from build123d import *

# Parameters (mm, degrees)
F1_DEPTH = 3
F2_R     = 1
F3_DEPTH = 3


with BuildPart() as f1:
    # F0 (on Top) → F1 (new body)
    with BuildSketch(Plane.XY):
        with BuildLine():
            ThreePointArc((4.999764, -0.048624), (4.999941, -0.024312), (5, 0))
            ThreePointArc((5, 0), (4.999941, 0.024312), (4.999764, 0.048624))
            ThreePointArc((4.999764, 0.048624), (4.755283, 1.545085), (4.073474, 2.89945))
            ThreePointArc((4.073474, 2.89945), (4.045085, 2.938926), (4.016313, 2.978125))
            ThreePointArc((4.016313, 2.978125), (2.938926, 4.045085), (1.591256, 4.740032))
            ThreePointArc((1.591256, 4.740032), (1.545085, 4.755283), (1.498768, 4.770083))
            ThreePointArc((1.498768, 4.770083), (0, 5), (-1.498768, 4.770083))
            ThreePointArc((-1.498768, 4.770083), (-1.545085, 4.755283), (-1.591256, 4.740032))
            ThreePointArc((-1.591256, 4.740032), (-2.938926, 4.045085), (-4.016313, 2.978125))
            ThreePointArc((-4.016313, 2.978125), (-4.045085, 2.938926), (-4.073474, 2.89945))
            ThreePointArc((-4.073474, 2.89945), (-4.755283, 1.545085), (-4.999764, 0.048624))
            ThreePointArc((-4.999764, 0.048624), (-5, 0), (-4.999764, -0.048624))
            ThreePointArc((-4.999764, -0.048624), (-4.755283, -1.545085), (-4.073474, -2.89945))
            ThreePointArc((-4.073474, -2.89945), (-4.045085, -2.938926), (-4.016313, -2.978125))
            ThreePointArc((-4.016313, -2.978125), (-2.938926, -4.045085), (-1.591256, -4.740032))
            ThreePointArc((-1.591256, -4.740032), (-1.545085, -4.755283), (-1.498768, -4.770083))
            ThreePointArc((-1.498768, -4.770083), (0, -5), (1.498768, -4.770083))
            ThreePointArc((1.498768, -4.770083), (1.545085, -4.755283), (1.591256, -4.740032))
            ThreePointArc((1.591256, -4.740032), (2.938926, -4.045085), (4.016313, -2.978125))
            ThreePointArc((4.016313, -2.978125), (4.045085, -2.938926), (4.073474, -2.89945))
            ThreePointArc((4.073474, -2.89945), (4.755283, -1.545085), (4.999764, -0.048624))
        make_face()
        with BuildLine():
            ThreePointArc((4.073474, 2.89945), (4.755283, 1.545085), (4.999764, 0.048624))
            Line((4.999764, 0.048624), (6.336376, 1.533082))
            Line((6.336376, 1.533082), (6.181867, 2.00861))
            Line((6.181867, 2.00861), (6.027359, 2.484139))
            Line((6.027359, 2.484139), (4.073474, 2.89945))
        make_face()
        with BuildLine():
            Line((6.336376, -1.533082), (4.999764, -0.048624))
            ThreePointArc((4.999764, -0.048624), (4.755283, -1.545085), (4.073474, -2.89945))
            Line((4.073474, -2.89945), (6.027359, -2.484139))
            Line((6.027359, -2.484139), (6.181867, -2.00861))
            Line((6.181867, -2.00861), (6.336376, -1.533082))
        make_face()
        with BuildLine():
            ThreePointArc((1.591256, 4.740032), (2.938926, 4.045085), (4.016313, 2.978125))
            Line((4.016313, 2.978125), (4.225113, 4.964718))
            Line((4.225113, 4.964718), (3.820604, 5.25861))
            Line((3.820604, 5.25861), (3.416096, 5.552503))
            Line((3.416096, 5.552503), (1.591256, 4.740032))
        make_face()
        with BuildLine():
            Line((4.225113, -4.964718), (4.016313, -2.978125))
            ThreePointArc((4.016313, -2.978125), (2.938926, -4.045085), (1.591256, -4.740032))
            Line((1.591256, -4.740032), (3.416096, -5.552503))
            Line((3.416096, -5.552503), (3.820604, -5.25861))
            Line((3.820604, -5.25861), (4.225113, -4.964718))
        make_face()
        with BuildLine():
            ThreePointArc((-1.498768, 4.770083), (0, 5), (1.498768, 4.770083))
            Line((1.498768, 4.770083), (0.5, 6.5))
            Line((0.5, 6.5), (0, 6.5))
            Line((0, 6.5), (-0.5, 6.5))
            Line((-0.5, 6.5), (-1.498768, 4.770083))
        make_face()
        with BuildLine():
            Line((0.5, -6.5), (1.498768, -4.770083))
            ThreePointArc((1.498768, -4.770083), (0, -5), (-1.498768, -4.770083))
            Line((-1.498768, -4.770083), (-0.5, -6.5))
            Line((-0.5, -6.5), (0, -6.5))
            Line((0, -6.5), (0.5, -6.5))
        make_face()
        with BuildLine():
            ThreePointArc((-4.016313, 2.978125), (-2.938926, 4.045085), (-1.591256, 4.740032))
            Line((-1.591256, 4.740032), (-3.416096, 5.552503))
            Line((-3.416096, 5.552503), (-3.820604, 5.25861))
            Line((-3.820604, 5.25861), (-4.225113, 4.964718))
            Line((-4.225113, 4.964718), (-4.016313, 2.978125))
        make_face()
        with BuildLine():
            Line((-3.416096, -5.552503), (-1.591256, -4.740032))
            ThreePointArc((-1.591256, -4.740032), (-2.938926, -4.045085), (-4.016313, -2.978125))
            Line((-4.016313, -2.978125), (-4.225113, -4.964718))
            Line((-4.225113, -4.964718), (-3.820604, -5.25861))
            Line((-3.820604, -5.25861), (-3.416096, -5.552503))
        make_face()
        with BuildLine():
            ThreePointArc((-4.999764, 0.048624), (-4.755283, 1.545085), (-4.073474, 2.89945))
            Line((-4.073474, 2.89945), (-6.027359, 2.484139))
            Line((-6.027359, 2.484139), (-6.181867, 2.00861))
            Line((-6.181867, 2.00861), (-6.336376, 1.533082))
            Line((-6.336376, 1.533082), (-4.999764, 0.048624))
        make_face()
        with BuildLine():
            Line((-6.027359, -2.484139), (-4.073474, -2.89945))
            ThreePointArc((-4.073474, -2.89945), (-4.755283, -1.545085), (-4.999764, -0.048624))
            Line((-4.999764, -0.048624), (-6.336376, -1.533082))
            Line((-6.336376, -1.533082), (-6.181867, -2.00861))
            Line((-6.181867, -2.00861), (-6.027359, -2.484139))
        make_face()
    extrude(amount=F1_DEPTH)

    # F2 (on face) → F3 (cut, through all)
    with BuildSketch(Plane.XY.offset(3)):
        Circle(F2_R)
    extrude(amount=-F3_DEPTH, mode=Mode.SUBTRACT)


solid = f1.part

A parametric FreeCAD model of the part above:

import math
import FreeCAD as App
import Part
import Sketcher
from FreeCAD import Vector
Q = App.Units.Quantity

doc = App.newDocument("Part")
body = doc.addObject("PartDesign::Body", "Body")

# Sketch on XY plane
sketch1 = doc.addObject("Sketcher::SketchObject", "Sketch")
body.addObject(sketch1)
sketch1.AttachmentSupport = (doc.XY_Plane, [""])
sketch1.MapMode = "FlatFace"
sketch1.addGeometry(Part.ArcOfCircle(Part.Circle(Vector(-0.009, 0, 0), Vector(0, 0, 1), 5.009), math.radians(-0.56), math.radians(0)), False)
sketch1.addGeometry(Part.ArcOfCircle(Part.Circle(Vector(-0.009, 0, 0), Vector(0, 0, 1), 5.009), math.radians(0), math.radians(0.56)), False)
sketch1.addGeometry(Part.LineSegment(Vector(5, 0.049, 0), Vector(6.336, 1.533, 0)), False)
sketch1.addGeometry(Part.LineSegment(Vector(6.336, 1.533, 0), Vector(6.182, 2.009, 0)), False)
sketch1.addGeometry(Part.LineSegment(Vector(6.182, 2.009, 0), Vector(6.027, 2.484, 0)), False)
sketch1.addGeometry(Part.LineSegment(Vector(6.027, 2.484, 0), Vector(4.073, 2.899, 0)), False)
sketch1.addGeometry(Part.ArcOfCircle(Part.Circle(Vector(-0.002, -0.001, 0), Vector(0, 0, 1), 5.002), math.radians(35.44), math.radians(36.56)), False)
sketch1.addGeometry(Part.LineSegment(Vector(4.016, 2.978, 0), Vector(4.225, 4.965, 0)), False)
sketch1.addGeometry(Part.LineSegment(Vector(4.225, 4.965, 0), Vector(3.821, 5.259, 0)), False)
sketch1.addGeometry(Part.LineSegment(Vector(3.821, 5.259, 0), Vector(3.416, 5.553, 0)), False)
sketch1.addGeometry(Part.LineSegment(Vector(3.416, 5.553, 0), Vector(1.591, 4.74, 0)), False)
sketch1.addGeometry(Part.ArcOfCircle(Part.Circle(Vector(0.004, 0.012, 0), Vector(0, 0, 1), 4.988), math.radians(71.44), math.radians(72.56)), False)
sketch1.addGeometry(Part.LineSegment(Vector(1.499, 4.77, 0), Vector(0.5, 6.5, 0)), False)
sketch1.addGeometry(Part.LineSegment(Vector(0.5, 6.5, 0), Vector(-0.5, 6.5, 0)), False)
sketch1.addGeometry(Part.LineSegment(Vector(-0.5, 6.5, 0), Vector(-1.499, 4.77, 0)), False)
sketch1.addGeometry(Part.ArcOfCircle(Part.Circle(Vector(-0.004, 0.012, 0), Vector(0, 0, 1), 4.988), math.radians(107.44), math.radians(108.56)), False)
sketch1.addGeometry(Part.LineSegment(Vector(-1.591, 4.74, 0), Vector(-3.416, 5.553, 0)), False)
sketch1.addGeometry(Part.LineSegment(Vector(-3.416, 5.553, 0), Vector(-3.821, 5.259, 0)), False)
sketch1.addGeometry(Part.LineSegment(Vector(-3.821, 5.259, 0), Vector(-4.225, 4.965, 0)), False)
sketch1.addGeometry(Part.LineSegment(Vector(-4.225, 4.965, 0), Vector(-4.016, 2.978, 0)), False)
sketch1.addGeometry(Part.ArcOfCircle(Part.Circle(Vector(0.002, -0.001, 0), Vector(0, 0, 1), 5.002), math.radians(143.44), math.radians(144.56)), False)
sketch1.addGeometry(Part.LineSegment(Vector(-4.073, 2.899, 0), Vector(-6.027, 2.484, 0)), False)
sketch1.addGeometry(Part.LineSegment(Vector(-6.027, 2.484, 0), Vector(-6.182, 2.009, 0)), False)
sketch1.addGeometry(Part.LineSegment(Vector(-6.182, 2.009, 0), Vector(-6.336, 1.533, 0)), False)
sketch1.addGeometry(Part.LineSegment(Vector(-6.336, 1.533, 0), Vector(-5, 0.049, 0)), False)
sketch1.addGeometry(Part.ArcOfCircle(Part.Circle(Vector(0.009, 0, 0), Vector(0, 0, 1), 5.009), math.radians(179.44), math.radians(180.56)), False)
sketch1.addGeometry(Part.LineSegment(Vector(-5, -0.049, 0), Vector(-6.336, -1.533, 0)), False)
sketch1.addGeometry(Part.LineSegment(Vector(-6.336, -1.533, 0), Vector(-6.182, -2.009, 0)), False)
sketch1.addGeometry(Part.LineSegment(Vector(-6.182, -2.009, 0), Vector(-6.027, -2.484, 0)), False)
sketch1.addGeometry(Part.LineSegment(Vector(-6.027, -2.484, 0), Vector(-4.073, -2.899, 0)), False)
sketch1.addGeometry(Part.ArcOfCircle(Part.Circle(Vector(0.002, 0.001, 0), Vector(0, 0, 1), 5.002), math.radians(-144.56), math.radians(-143.44)), False)
sketch1.addGeometry(Part.LineSegment(Vector(-4.016, -2.978, 0), Vector(-4.225, -4.965, 0)), False)
sketch1.addGeometry(Part.LineSegment(Vector(-4.225, -4.965, 0), Vector(-3.821, -5.259, 0)), False)
sketch1.addGeometry(Part.LineSegment(Vector(-3.821, -5.259, 0), Vector(-3.416, -5.553, 0)), False)
sketch1.addGeometry(Part.LineSegment(Vector(-3.416, -5.553, 0), Vector(-1.591, -4.74, 0)), False)
sketch1.addGeometry(Part.ArcOfCircle(Part.Circle(Vector(-0.004, -0.012, 0), Vector(0, 0, 1), 4.988), math.radians(-108.56), math.radians(-107.44)), False)
sketch1.addGeometry(Part.LineSegment(Vector(-1.499, -4.77, 0), Vector(-0.5, -6.5, 0)), False)
sketch1.addGeometry(Part.LineSegment(Vector(-0.5, -6.5, 0), Vector(0.5, -6.5, 0)), False)
sketch1.addGeometry(Part.LineSegment(Vector(0.5, -6.5, 0), Vector(1.499, -4.77, 0)), False)
sketch1.addGeometry(Part.ArcOfCircle(Part.Circle(Vector(0.004, -0.012, 0), Vector(0, 0, 1), 4.988), math.radians(-72.56), math.radians(-71.44)), False)
sketch1.addGeometry(Part.LineSegment(Vector(1.591, -4.74, 0), Vector(3.416, -5.553, 0)), False)
sketch1.addGeometry(Part.LineSegment(Vector(3.416, -5.553, 0), Vector(3.821, -5.259, 0)), False)
sketch1.addGeometry(Part.LineSegment(Vector(3.821, -5.259, 0), Vector(4.225, -4.965, 0)), False)
sketch1.addGeometry(Part.LineSegment(Vector(4.225, -4.965, 0), Vector(4.016, -2.978, 0)), False)
sketch1.addGeometry(Part.ArcOfCircle(Part.Circle(Vector(-0.002, 0.001, 0), Vector(0, 0, 1), 5.002), math.radians(-36.56), math.radians(-35.44)), False)
sketch1.addGeometry(Part.LineSegment(Vector(4.073, -2.899, 0), Vector(6.027, -2.484, 0)), False)
sketch1.addGeometry(Part.LineSegment(Vector(6.027, -2.484, 0), Vector(6.182, -2.009, 0)), False)
sketch1.addGeometry(Part.LineSegment(Vector(6.182, -2.009, 0), Vector(6.336, -1.533, 0)), False)
sketch1.addGeometry(Part.LineSegment(Vector(6.336, -1.533, 0), Vector(5, -0.049, 0)), False)
sketch1.addConstraint(Sketcher.Constraint("Tangent", 0, 2, 1, 1))
sketch1.addConstraint(Sketcher.Constraint("Coincident", 1, 2, 2, 1))
sketch1.addConstraint(Sketcher.Constraint("Coincident", 2, 2, 3, 1))
sketch1.addConstraint(Sketcher.Constraint("Coincident", 3, 2, 4, 1))
sketch1.addConstraint(Sketcher.Constraint("Coincident", 4, 2, 5, 1))
sketch1.addConstraint(Sketcher.Constraint("Coincident", 5, 2, 6, 1))
sketch1.addConstraint(Sketcher.Constraint("Coincident", 6, 2, 7, 1))
sketch1.addConstraint(Sketcher.Constraint("Coincident", 7, 2, 8, 1))
sketch1.addConstraint(Sketcher.Constraint("Coincident", 8, 2, 9, 1))
sketch1.addConstraint(Sketcher.Constraint("Coincident", 9, 2, 10, 1))
sketch1.addConstraint(Sketcher.Constraint("Coincident", 10, 2, 11, 1))
sketch1.addConstraint(Sketcher.Constraint("Coincident", 11, 2, 12, 1))
sketch1.addConstraint(Sketcher.Constraint("Coincident", 12, 2, 13, 1))
sketch1.addConstraint(Sketcher.Constraint("Coincident", 13, 2, 14, 1))
sketch1.addConstraint(Sketcher.Constraint("Coincident", 14, 2, 15, 1))
sketch1.addConstraint(Sketcher.Constraint("Coincident", 15, 2, 16, 1))
sketch1.addConstraint(Sketcher.Constraint("Coincident", 16, 2, 17, 1))
sketch1.addConstraint(Sketcher.Constraint("Coincident", 17, 2, 18, 1))
sketch1.addConstraint(Sketcher.Constraint("Coincident", 18, 2, 19, 1))
sketch1.addConstraint(Sketcher.Constraint("Coincident", 19, 2, 20, 1))
sketch1.addConstraint(Sketcher.Constraint("Coincident", 20, 2, 21, 1))
sketch1.addConstraint(Sketcher.Constraint("Coincident", 21, 2, 22, 1))
sketch1.addConstraint(Sketcher.Constraint("Coincident", 22, 2, 23, 1))
sketch1.addConstraint(Sketcher.Constraint("Coincident", 23, 2, 24, 1))
sketch1.addConstraint(Sketcher.Constraint("Coincident", 24, 2, 25, 1))
sketch1.addConstraint(Sketcher.Constraint("Coincident", 25, 2, 26, 1))
sketch1.addConstraint(Sketcher.Constraint("Coincident", 26, 2, 27, 1))
sketch1.addConstraint(Sketcher.Constraint("Coincident", 27, 2, 28, 1))
sketch1.addConstraint(Sketcher.Constraint("Coincident", 28, 2, 29, 1))
sketch1.addConstraint(Sketcher.Constraint("Coincident", 29, 2, 30, 1))
sketch1.addConstraint(Sketcher.Constraint("Coincident", 30, 2, 31, 1))
sketch1.addConstraint(Sketcher.Constraint("Coincident", 31, 2, 32, 1))
sketch1.addConstraint(Sketcher.Constraint("Coincident", 32, 2, 33, 1))
sketch1.addConstraint(Sketcher.Constraint("Coincident", 33, 2, 34, 1))
sketch1.addConstraint(Sketcher.Constraint("Coincident", 34, 2, 35, 1))
sketch1.addConstraint(Sketcher.Constraint("Coincident", 35, 2, 36, 1))
sketch1.addConstraint(Sketcher.Constraint("Coincident", 36, 2, 37, 1))
sketch1.addConstraint(Sketcher.Constraint("Coincident", 37, 2, 38, 1))
sketch1.addConstraint(Sketcher.Constraint("Coincident", 38, 2, 39, 1))
sketch1.addConstraint(Sketcher.Constraint("Coincident", 39, 2, 40, 1))
sketch1.addConstraint(Sketcher.Constraint("Coincident", 40, 2, 41, 1))
sketch1.addConstraint(Sketcher.Constraint("Coincident", 41, 2, 42, 1))
sketch1.addConstraint(Sketcher.Constraint("Coincident", 42, 2, 43, 1))
sketch1.addConstraint(Sketcher.Constraint("Coincident", 43, 2, 44, 1))
sketch1.addConstraint(Sketcher.Constraint("Coincident", 44, 2, 45, 1))
sketch1.addConstraint(Sketcher.Constraint("Coincident", 45, 2, 46, 1))
sketch1.addConstraint(Sketcher.Constraint("Coincident", 46, 2, 47, 1))
sketch1.addConstraint(Sketcher.Constraint("Coincident", 47, 2, 48, 1))
sketch1.addConstraint(Sketcher.Constraint("Coincident", 48, 2, 0, 1))
sketch1.addConstraint(Sketcher.Constraint("Horizontal", 13))
sketch1.addConstraint(Sketcher.Constraint("Horizontal", 37))
sketch1.addConstraint(Sketcher.Constraint("Equal", 0, 1))
sketch1.addConstraint(Sketcher.Constraint("Equal", 11, 15))
sketch1.addConstraint(Sketcher.Constraint("Equal", 6, 20))
sketch1.addConstraint(Sketcher.Constraint("Equal", 20, 30))
sketch1.addConstraint(Sketcher.Constraint("Equal", 15, 35))
sketch1.addConstraint(Sketcher.Constraint("Equal", 35, 39))
sketch1.addConstraint(Sketcher.Constraint("Equal", 30, 44))
sketch1.addConstraint(Sketcher.Constraint("Symmetric", 6, 3, 30, 3, -1, 1))
sketch1.addConstraint(Sketcher.Constraint("Symmetric", 11, 3, 35, 3, -1, 1))
sketch1.addConstraint(Sketcher.Constraint("Symmetric", 15, 3, 39, 3, -1, 1))
sketch1.addConstraint(Sketcher.Constraint("Symmetric", 20, 3, 44, 3, -1, 1))
sketch1.addConstraint(Sketcher.Constraint("Symmetric", 1, 2, 25, 2, -1, 1))
sketch1.addConstraint(Sketcher.Constraint("Symmetric", 2, 2, 26, 2, -1, 1))
sketch1.addConstraint(Sketcher.Constraint("Symmetric", 3, 2, 27, 2, -1, 1))
sketch1.addConstraint(Sketcher.Constraint("Symmetric", 4, 2, 28, 2, -1, 1))
sketch1.addConstraint(Sketcher.Constraint("Symmetric", 7, 2, 31, 2, -1, 1))
sketch1.addConstraint(Sketcher.Constraint("Symmetric", 8, 2, 32, 2, -1, 1))
sketch1.addConstraint(Sketcher.Constraint("Symmetric", 9, 2, 33, 2, -1, 1))
sketch1.addConstraint(Sketcher.Constraint("Symmetric", 12, 2, 36, 2, -1, 1))
sketch1.addConstraint(Sketcher.Constraint("Symmetric", 16, 2, 40, 2, -1, 1))
sketch1.addConstraint(Sketcher.Constraint("Symmetric", 17, 2, 41, 2, -1, 1))
sketch1.addConstraint(Sketcher.Constraint("Symmetric", 18, 2, 42, 2, -1, 1))
sketch1.addConstraint(Sketcher.Constraint("Symmetric", 21, 2, 45, 2, -1, 1))
sketch1.addConstraint(Sketcher.Constraint("Symmetric", 22, 2, 46, 2, -1, 1))
sketch1.addConstraint(Sketcher.Constraint("Symmetric", 23, 2, 47, 2, -1, 1))
sketch1.addConstraint(Sketcher.Constraint("Symmetric", 24, 2, 48, 2, -1, 1))
sketch1.addConstraint(Sketcher.Constraint("Symmetric", 11, 3, 15, 3, -2))
sketch1.addConstraint(Sketcher.Constraint("Symmetric", 6, 3, 20, 3, -2))
sketch1.addConstraint(Sketcher.Constraint("Symmetric", 9, 2, 16, 2, -2))
sketch1.addConstraint(Sketcher.Constraint("Symmetric", 8, 2, 17, 2, -2))
sketch1.addConstraint(Sketcher.Constraint("Symmetric", 7, 2, 18, 2, -2))
sketch1.addConstraint(Sketcher.Constraint("Symmetric", 4, 2, 21, 2, -2))
sketch1.addConstraint(Sketcher.Constraint("Symmetric", 3, 2, 22, 2, -2))
sketch1.addConstraint(Sketcher.Constraint("Symmetric", 2, 2, 23, 2, -2))
sketch1.addConstraint(Sketcher.Constraint("Symmetric", 1, 2, 24, 2, -2))
sketch1.addConstraint(Sketcher.Constraint("PointOnObject", 0, 2, -1))
sketch1.addConstraint(Sketcher.Constraint("Parallel", 5, 29))
sketch1.addConstraint(Sketcher.Constraint("Parallel", 7, 31))
sketch1.addConstraint(Sketcher.Constraint("Parallel", 10, 34))
sketch1.addConstraint(Sketcher.Constraint("Parallel", 12, 36))
sketch1.addConstraint(Sketcher.Constraint("Parallel", 14, 38))
sketch1.addConstraint(Sketcher.Constraint("Parallel", 16, 40))
sketch1.addConstraint(Sketcher.Constraint("Parallel", 19, 43))
sketch1.addConstraint(Sketcher.Constraint("Parallel", 21, 45))
sketch1.addConstraint(Sketcher.Constraint("Horizontal", 11, 2, 14, 2))
sketch1.addConstraint(Sketcher.Constraint("Horizontal", 10, 2, 15, 2))
sketch1.addConstraint(Sketcher.Constraint("Horizontal", 6, 2, 19, 2))
sketch1.addConstraint(Sketcher.Constraint("Horizontal", 5, 2, 20, 2))
sketch1.addConstraint(Sketcher.Constraint("Horizontal", 35, 2, 38, 2))
sketch1.addConstraint(Sketcher.Constraint("Vertical", 13, 2, 36, 2))
sketch1.addConstraint(Sketcher.Constraint("Equal", 3, 4))
sketch1.addConstraint(Sketcher.Constraint("Equal", 2, 5))
sketch1.addConstraint(Sketcher.Constraint("Equal", 5, 7))
sketch1.addConstraint(Sketcher.Constraint("Equal", 4, 8))
sketch1.addConstraint(Sketcher.Constraint("Equal", 8, 9))
sketch1.addConstraint(Sketcher.Constraint("Equal", 7, 10))
sketch1.addConstraint(Sketcher.Constraint("Equal", 10, 12))
sketch1.addConstraint(Sketcher.Constraint("DistanceX", 13, 2, 13, 1, 1.0))
sketch1.addConstraint(Sketcher.Constraint("Angle", 2, Q("48 deg")))
sketch1.addConstraint(Sketcher.Constraint("Angle", 5, Q("168.000002 deg")))
sketch1.addConstraint(Sketcher.Constraint("Angle", 7, Q("83.999981 deg")))
sketch1.addConstraint(Sketcher.Constraint("Angle", 10, Q("-156.000003 deg")))
sketch1.addConstraint(Sketcher.Constraint("Angle", 12, Q("119.999999 deg")))
sketch1.addConstraint(Sketcher.Constraint("DistanceX", -1, 1, 0, 2, 5.0))
sketch1.addConstraint(Sketcher.Constraint("Distance", 3, 0.5))
sketch1.addConstraint(Sketcher.Constraint("DistanceY", -1, 1, 12, 2, 6.5))
sketch1.addConstraint(Sketcher.Constraint("DistanceY", 3, 2, 8, 2, 3.25))
sketch1.addConstraint(Sketcher.Constraint("Radius", 0, 5.009303))
sketch1.addConstraint(Sketcher.Constraint("Radius", 6, 5.002094))
sketch1.addConstraint(Sketcher.Constraint("Radius", 11, 4.987584))
sketch1.addConstraint(Sketcher.Constraint("Radius", 25, 5.009214))
sketch1.addConstraint(Sketcher.Constraint("DistanceX", 6, 3, 25, 3, 0.010902))
sketch1.addConstraint(Sketcher.Constraint("DistanceX", 5, 2, 2, 2, 2.262902))
sketch1.addConstraint(Sketcher.Constraint("DistanceY", 1, 2, 6, 2, 2.929501))
sketch1.addConstraint(Sketcher.Constraint("DistanceX", 6, 2, 7, 2, 0.2088))
sketch1.addConstraint(Sketcher.Constraint("DistanceY", 6, 3, -1, 1, 0.001239))
sketch1.addConstraint(Sketcher.Constraint("DistanceY", -1, 1, 3, 2, 2.00861))
sketch1.addConstraint(Sketcher.Constraint("DistanceY", -1, 1, 15, 2, 4.740032))
pad1 = doc.addObject("PartDesign::Pad", "Pad")
body.addObject(pad1)
pad1.Profile = sketch1
pad1.Length = 3

# Sketch on XY plane
sketch2 = doc.addObject("Sketcher::SketchObject", "Sketch001")
body.addObject(sketch2)
sketch2.AttachmentSupport = (doc.XY_Plane, [""])
sketch2.MapMode = "FlatFace"
sketch2.AttachmentOffset = App.Placement(Vector(0, 0, 3), App.Rotation())
sketch2.addGeometry(Part.Circle(Vector(0, 0, 0), Vector(0, 0, 1), 1), False)
sketch2.addConstraint(Sketcher.Constraint("Coincident", 0, 3, -1, 1))
sketch2.addConstraint(Sketcher.Constraint("Diameter", 0, 2.0))
pocket1 = doc.addObject("PartDesign::Pocket", "Pocket")
body.addObject(pocket1)
pocket1.Profile = sketch2
pocket1.Type = "ThroughAll"

doc.recompute()
